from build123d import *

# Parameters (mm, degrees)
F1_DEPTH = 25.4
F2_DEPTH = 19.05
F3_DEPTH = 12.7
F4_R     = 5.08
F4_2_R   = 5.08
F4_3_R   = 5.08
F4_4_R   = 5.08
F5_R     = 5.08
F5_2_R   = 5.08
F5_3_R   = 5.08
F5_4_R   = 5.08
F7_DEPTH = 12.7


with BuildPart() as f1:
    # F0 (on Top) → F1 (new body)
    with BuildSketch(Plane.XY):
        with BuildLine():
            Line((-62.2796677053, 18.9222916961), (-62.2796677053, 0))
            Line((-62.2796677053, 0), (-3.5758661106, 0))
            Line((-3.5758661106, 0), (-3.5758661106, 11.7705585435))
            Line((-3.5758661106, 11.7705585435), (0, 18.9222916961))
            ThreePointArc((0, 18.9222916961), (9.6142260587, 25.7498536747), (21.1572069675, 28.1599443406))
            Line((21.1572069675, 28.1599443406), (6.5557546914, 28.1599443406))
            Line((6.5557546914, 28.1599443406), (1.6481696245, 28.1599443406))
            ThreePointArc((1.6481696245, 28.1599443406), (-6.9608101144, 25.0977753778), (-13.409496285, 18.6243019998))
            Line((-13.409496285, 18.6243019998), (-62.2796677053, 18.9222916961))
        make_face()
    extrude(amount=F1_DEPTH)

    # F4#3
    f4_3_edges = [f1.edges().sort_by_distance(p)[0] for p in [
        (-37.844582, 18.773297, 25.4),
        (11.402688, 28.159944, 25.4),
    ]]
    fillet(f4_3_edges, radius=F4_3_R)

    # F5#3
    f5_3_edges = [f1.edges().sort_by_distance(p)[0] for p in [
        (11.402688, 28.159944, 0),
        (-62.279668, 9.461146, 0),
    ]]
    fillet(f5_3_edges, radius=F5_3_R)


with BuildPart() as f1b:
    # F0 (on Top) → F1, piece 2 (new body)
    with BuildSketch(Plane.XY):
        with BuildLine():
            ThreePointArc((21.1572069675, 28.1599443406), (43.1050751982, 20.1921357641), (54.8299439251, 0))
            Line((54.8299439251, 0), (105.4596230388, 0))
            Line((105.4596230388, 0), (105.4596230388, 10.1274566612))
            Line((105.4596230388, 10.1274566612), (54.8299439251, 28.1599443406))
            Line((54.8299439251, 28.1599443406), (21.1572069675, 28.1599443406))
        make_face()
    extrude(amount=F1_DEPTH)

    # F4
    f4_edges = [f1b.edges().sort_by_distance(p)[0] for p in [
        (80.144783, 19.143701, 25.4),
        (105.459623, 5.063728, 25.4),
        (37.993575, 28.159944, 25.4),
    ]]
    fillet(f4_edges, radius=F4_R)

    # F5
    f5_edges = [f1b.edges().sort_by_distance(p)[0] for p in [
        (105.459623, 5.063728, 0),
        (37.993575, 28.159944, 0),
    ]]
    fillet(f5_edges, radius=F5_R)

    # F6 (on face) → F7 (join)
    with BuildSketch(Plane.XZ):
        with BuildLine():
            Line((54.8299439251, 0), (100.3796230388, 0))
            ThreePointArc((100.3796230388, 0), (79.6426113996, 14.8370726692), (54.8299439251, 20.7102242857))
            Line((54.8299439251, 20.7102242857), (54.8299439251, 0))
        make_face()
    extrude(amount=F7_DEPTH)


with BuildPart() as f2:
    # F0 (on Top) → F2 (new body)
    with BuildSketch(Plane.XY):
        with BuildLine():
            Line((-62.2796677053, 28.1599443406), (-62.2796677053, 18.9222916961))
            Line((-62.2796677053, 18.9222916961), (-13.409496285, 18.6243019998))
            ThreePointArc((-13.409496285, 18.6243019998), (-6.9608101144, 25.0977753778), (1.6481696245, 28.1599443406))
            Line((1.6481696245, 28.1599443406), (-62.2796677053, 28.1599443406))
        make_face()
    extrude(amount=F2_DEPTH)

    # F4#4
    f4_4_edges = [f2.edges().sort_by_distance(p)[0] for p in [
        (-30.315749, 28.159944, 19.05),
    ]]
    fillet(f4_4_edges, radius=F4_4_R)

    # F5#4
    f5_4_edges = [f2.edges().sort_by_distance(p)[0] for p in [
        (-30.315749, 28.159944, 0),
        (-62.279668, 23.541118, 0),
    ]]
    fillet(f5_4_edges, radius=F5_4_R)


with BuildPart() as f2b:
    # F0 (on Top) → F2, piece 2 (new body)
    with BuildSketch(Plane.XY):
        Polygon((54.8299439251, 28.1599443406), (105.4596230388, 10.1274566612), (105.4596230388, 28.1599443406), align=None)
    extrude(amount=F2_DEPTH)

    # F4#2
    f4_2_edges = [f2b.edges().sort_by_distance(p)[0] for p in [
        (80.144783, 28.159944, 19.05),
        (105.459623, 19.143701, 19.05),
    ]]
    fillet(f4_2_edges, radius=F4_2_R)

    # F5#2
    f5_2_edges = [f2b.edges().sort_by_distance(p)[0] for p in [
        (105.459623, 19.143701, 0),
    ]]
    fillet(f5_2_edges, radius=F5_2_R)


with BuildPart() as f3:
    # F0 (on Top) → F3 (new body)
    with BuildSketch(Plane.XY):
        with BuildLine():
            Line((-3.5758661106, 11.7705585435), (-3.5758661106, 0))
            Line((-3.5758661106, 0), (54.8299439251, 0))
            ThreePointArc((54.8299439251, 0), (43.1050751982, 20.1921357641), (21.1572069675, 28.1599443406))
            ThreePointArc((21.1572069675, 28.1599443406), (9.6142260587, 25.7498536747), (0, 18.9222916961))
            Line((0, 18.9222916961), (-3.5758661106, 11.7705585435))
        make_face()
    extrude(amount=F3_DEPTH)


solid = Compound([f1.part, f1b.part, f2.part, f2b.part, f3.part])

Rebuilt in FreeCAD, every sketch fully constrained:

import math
import FreeCAD as App
import Part
import Sketcher
Q = App.Units.Quantity


def edges_at(feature, points):
    """Names of the edges that pass closest to the given points."""
    edges = feature.Shape.Edges
    near = lambda p: min(range(len(edges)), key=lambda i: edges[i].distToShape(Part.Vertex(*p))[0])
    return sorted({f"Edge{near(p) + 1}" for p in points})

doc = App.newDocument("Part")
body = doc.addObject("PartDesign::Body", "Body")

sketch1 = doc.addObject("Sketcher::SketchObject", "Sketch")
body.addObject(sketch1)
sketch1.AttachmentSupport = (doc.XY_Plane, [""])
sketch1.MapMode = "FlatFace"
sketch1.addGeometry([
    Part.LineSegment(App.Vector(-62, 19, 0), App.Vector(-62, 0, 0)),
    Part.LineSegment(App.Vector(-62, 0, 0), App.Vector(-4, 0, 0)),
    Part.LineSegment(App.Vector(-4, 0, 0), App.Vector(-4, 12, 0)),
    Part.LineSegment(App.Vector(-4, 12, 0), App.Vector(0, 19, 0)),
    Part.ArcOfCircle(Part.Circle(App.Vector(21, -1, 0), App.Vector(0, 0, 1), 29), math.radians(90), math.radians(137)),
    Part.LineSegment(App.Vector(21, 28, 0), App.Vector(2, 28, 0)),
    Part.ArcOfCircle(Part.Circle(App.Vector(4, 8, 0), App.Vector(0, 0, 1), 21), math.radians(97), math.radians(148)),
    Part.LineSegment(App.Vector(-13, 19, 0), App.Vector(-62, 19, 0)),
], False)
sketch1.addConstraint([
    Sketcher.Constraint("Coincident", 0, 2, 1, 1),
    Sketcher.Constraint("Coincident", 1, 2, 2, 1),
    Sketcher.Constraint("Coincident", 2, 2, 3, 1),
    Sketcher.Constraint("Coincident", 3, 2, 4, 2),
    Sketcher.Constraint("Tangent", 4, 1, 5, 1),
    Sketcher.Constraint("Coincident", 5, 2, 6, 1),
    Sketcher.Constraint("Coincident", 6, 2, 7, 1),
    Sketcher.Constraint("Coincident", 7, 2, 0, 1),
    Sketcher.Constraint("Vertical", 0),
    Sketcher.Constraint("Horizontal", 1),
    Sketcher.Constraint("Vertical", 2),
    Sketcher.Constraint("Horizontal", 5),
    Sketcher.Constraint("PointOnObject", 0, 2, -1),
    Sketcher.Constraint("PointOnObject", 3, 2, -2),
    Sketcher.Constraint("Horizontal", 3, 2, 7, 2),
    Sketcher.Constraint("DistanceX", 1, 1, 1, 2, 58.703802),
    Sketcher.Constraint("Radius", 4, 28.847244),
    Sketcher.Constraint("Radius", 6, 20.677427),
    Sketcher.Constraint("DistanceY", 0, 2, 0, 1, 18.922292),
    Sketcher.Constraint("DistanceY", 2, 1, 2, 2, 11.770559),
    Sketcher.Constraint("DistanceY", 4, 3, -1, 1, 0.687299),
    Sketcher.Constraint("Distance", 3, 7.995881),
    Sketcher.Constraint("Distance", 7, 48.87108),
    Sketcher.Constraint("DistanceX", 5, 2, 5, 1, 19.509037),
    Sketcher.Constraint("DistanceY", -1, 1, 6, 3, 7.628629),
])
pad1 = doc.addObject("PartDesign::Pad", "Pad")
body.addObject(pad1)
pad1.Profile = sketch1
pad1.Length = Q("1 in")
doc.recompute()

fillet = doc.addObject("PartDesign::Fillet", "Fillet")
body.addObject(fillet)
fillet.Base = (pad1, edges_at(pad1, [(-37.845, 18.773, 25.4), (11.403, 28.16, 25.4)]))
fillet.Radius = Q("0.2 in")
doc.recompute()

fillet2 = doc.addObject("PartDesign::Fillet", "Fillet001")
body.addObject(fillet2)
fillet2.Base = (fillet, edges_at(fillet, [(11.403, 28.16, 0), (-62.28, 9.461, 0)]))
fillet2.Radius = Q("0.2 in")
body2 = doc.addObject("PartDesign::Body", "Body001")

sketch2 = doc.addObject("Sketcher::SketchObject", "Sketch001")
body2.addObject(sketch2)
sketch2.AttachmentSupport = (doc.getObject("XY_Plane001"), [""])
sketch2.MapMode = "FlatFace"
sketch2.addGeometry([
    Part.ArcOfCircle(Part.Circle(App.Vector(21, -6, 0), App.Vector(0, 0, 1), 34), math.radians(10), math.radians(90)),
    Part.LineSegment(App.Vector(55, 0, 0), App.Vector(105, 0, 0)),
    Part.LineSegment(App.Vector(105, 0, 0), App.Vector(105, 10, 0)),
    Part.LineSegment(App.Vector(105, 10, 0), App.Vector(55, 28, 0)),
    Part.LineSegment(App.Vector(55, 28, 0), App.Vector(21, 28, 0)),
], False)
sketch2.addConstraint([
    Sketcher.Constraint("Coincident", 0, 1, 1, 1),
    Sketcher.Constraint("Coincident", 1, 2, 2, 1),
    Sketcher.Constraint("Coincident", 2, 2, 3, 1),
    Sketcher.Constraint("Coincident", 3, 2, 4, 1),
    Sketcher.Constraint("Tangent", 4, 2, 0, 2),
    Sketcher.Constraint("Horizontal", 1),
    Sketcher.Constraint("Vertical", 2),
    Sketcher.Constraint("Horizontal", 4),
    Sketcher.Constraint("PointOnObject", 0, 1, -1),
    Sketcher.Constraint("Vertical", 0, 1, 3, 2),
    Sketcher.Constraint("Radius", 0, 34.212349),
    Sketcher.Constraint("DistanceX", 1, 1, 1, 2, 50.629679),
    Sketcher.Constraint("DistanceX", 4, 2, 4, 1, 33.672737),
    Sketcher.Constraint("DistanceY", 2, 1, 2, 2, 10.127457),
    Sketcher.Constraint("DistanceX", -1, 1, 0, 3, 21.157207),
])
pad2 = doc.addObject("PartDesign::Pad", "Pad001")
body2.addObject(pad2)
pad2.Profile = sketch2
pad2.Length = Q("1 in")
doc.recompute()

fillet3 = doc.addObject("PartDesign::Fillet", "Fillet002")
body2.addObject(fillet3)
fillet3.Base = (pad2, edges_at(pad2, [(80.145, 19.144, 25.4), (105.46, 5.064, 25.4), (37.994, 28.16, 25.4)]))
fillet3.Radius = Q("0.2 in")
doc.recompute()

fillet4 = doc.addObject("PartDesign::Fillet", "Fillet003")
body2.addObject(fillet4)
fillet4.Base = (fillet3, edges_at(fillet3, [(105.46, 5.064, 0), (37.994, 28.16, 0)]))
fillet4.Radius = Q("0.2 in")

sketch3 = doc.addObject("Sketcher::SketchObject", "Sketch002")
body2.addObject(sketch3)
sketch3.AttachmentSupport = (doc.getObject("XZ_Plane001"), [""])
sketch3.MapMode = "FlatFace"
sketch3.addGeometry([
    Part.LineSegment(App.Vector(55, 0, 0), App.Vector(100, 0, 0)),
    Part.ArcOfCircle(Part.Circle(App.Vector(52, -45, 0), App.Vector(0, 0, 1), 66), math.radians(43), math.radians(88)),
    Part.LineSegment(App.Vector(55, 21, 0), App.Vector(55, 0, 0)),
], False)
sketch3.addConstraint([
    Sketcher.Constraint("Coincident", 0, 2, 1, 1),
    Sketcher.Constraint("Coincident", 1, 2, 2, 1),
    Sketcher.Constraint("Coincident", 2, 2, 0, 1),
    Sketcher.Constraint("Horizontal", 0),
    Sketcher.Constraint("Vertical", 2),
    Sketcher.Constraint("PointOnObject", 0, 2, -1),
    Sketcher.Constraint("Radius", 1, 66.026632),
    Sketcher.Constraint("DistanceX", 0, 1, 0, 2, 45.549679),
    Sketcher.Constraint("DistanceY", 2, 2, 2, 1, 20.710224),
    Sketcher.Constraint("DistanceX", -1, 1, 1, 3, 52.314227),
])
pad3 = doc.addObject("PartDesign::Pad", "Pad002")
body2.addObject(pad3)
pad3.Profile = sketch3
pad3.Length = Q("0.5 in")
body3 = doc.addObject("PartDesign::Body", "Body002")

sketch4 = doc.addObject("Sketcher::SketchObject", "Sketch003")
body3.addObject(sketch4)
sketch4.AttachmentSupport = (doc.getObject("XY_Plane002"), [""])
sketch4.MapMode = "FlatFace"
sketch4.addGeometry([
    Part.LineSegment(App.Vector(-62, 28, 0), App.Vector(-62, 19, 0)),
    Part.LineSegment(App.Vector(-62, 19, 0), App.Vector(-13, 19, 0)),
    Part.ArcOfCircle(Part.Circle(App.Vector(4, 8, 0), App.Vector(0, 0, 1), 21), math.radians(97), math.radians(148)),
    Part.LineSegment(App.Vector(2, 28, 0), App.Vector(-62, 28, 0)),
], False)
sketch4.addConstraint([
    Sketcher.Constraint("Coincident", 0, 2, 1, 1),
    Sketcher.Constraint("Coincident", 1, 2, 2, 2),
    Sketcher.Constraint("Coincident", 2, 1, 3, 1),
    Sketcher.Constraint("Coincident", 3, 2, 0, 1),
    Sketcher.Constraint("Vertical", 0),
    Sketcher.Constraint("Horizontal", 3),
    Sketcher.Constraint("Radius", 2, 20.677427),
    Sketcher.Constraint("DistanceY", -1, 1, 1, 2, 18.624302),
    Sketcher.Constraint("Distance", 1, 48.87108),
    Sketcher.Constraint("DistanceX", 3, 2, 3, 1, 63.927837),
    Sketcher.Constraint("DistanceY", 0, 2, 0, 1, 9.237653),
    Sketcher.Constraint("DistanceY", -1, 1, 2, 3, 7.628629),
    Sketcher.Constraint("DistanceX", -1, 1, 2, 1, 1.64817),
])
pad4 = doc.addObject("PartDesign::Pad", "Pad003")
body3.addObject(pad4)
pad4.Profile = sketch4
pad4.Length = Q("0.75 in")
doc.recompute()

fillet5 = doc.addObject("PartDesign::Fillet", "Fillet004")
body3.addObject(fillet5)
fillet5.Base = (pad4, edges_at(pad4, [(-30.316, 28.16, 19.05)]))
fillet5.Radius = Q("0.2 in")
doc.recompute()

fillet6 = doc.addObject("PartDesign::Fillet", "Fillet005")
body3.addObject(fillet6)
fillet6.Base = (fillet5, edges_at(fillet5, [(-30.316, 28.16, 0), (-62.28, 23.541, 0)]))
fillet6.Radius = Q("0.2 in")
body4 = doc.addObject("PartDesign::Body", "Body003")

sketch5 = doc.addObject("Sketcher::SketchObject", "Sketch004")
body4.addObject(sketch5)
sketch5.AttachmentSupport = (doc.getObject("XY_Plane003"), [""])
sketch5.MapMode = "FlatFace"
sketch5.addGeometry([
    Part.LineSegment(App.Vector(55, 28, 0), App.Vector(105, 10, 0)),
    Part.LineSegment(App.Vector(105, 10, 0), App.Vector(105, 28, 0)),
    Part.LineSegment(App.Vector(105, 28, 0), App.Vector(55, 28, 0)),
], False)
sketch5.addConstraint([
    Sketcher.Constraint("Coincident", 0, 2, 1, 1),
    Sketcher.Constraint("Coincident", 1, 2, 2, 1),
    Sketcher.Constraint("Coincident", 2, 2, 0, 1),
    Sketcher.Constraint("Vertical", 1),
    Sketcher.Constraint("Horizontal", 2),
    Sketcher.Constraint("DistanceX", 2, 2, 2, 1, 50.629679),
    Sketcher.Constraint("DistanceY", 1, 1, 1, 2, 18.032488),
    Sketcher.Constraint("DistanceX", -1, 1, 0, 2, 105.459623),
    Sketcher.Constraint("DistanceY", -1, 1, 0, 2, 10.127457),
])
pad5 = doc.addObject("PartDesign::Pad", "Pad004")
body4.addObject(pad5)
pad5.Profile = sketch5
pad5.Length = Q("0.75 in")
doc.recompute()

fillet7 = doc.addObject("PartDesign::Fillet", "Fillet006")
body4.addObject(fillet7)
fillet7.Base = (pad5, edges_at(pad5, [(80.145, 28.16, 19.05), (105.46, 19.144, 19.05)]))
fillet7.Radius = Q("0.2 in")
doc.recompute()

fillet8 = doc.addObject("PartDesign::Fillet", "Fillet007")
body4.addObject(fillet8)
fillet8.Base = (fillet7, edges_at(fillet7, [(105.46, 19.144, 0)]))
fillet8.Radius = Q("0.2 in")
body5 = doc.addObject("PartDesign::Body", "Body004")

sketch6 = doc.addObject("Sketcher::SketchObject", "Sketch005")
body5.addObject(sketch6)
sketch6.AttachmentSupport = (doc.getObject("XY_Plane004"), [""])
sketch6.MapMode = "FlatFace"
sketch6.addGeometry([
    Part.LineSegment(App.Vector(-4, 12, 0), App.Vector(-4, 0, 0)),
    Part.LineSegment(App.Vector(-4, 0, 0), App.Vector(55, 0, 0)),
    Part.ArcOfCircle(Part.Circle(App.Vector(21, -6, 0), App.Vector(0, 0, 1), 34), math.radians(10), math.radians(90)),
    Part.ArcOfCircle(Part.Circle(App.Vector(21, -1, 0), App.Vector(0, 0, 1), 29), math.radians(90), math.radians(137)),
    Part.LineSegment(App.Vector(0, 19, 0), App.Vector(-4, 12, 0)),
], False)
sketch6.addConstraint([
    Sketcher.Constraint("Coincident", 0, 2, 1, 1),
    Sketcher.Constraint("Coincident", 1, 2, 2, 1),
    Sketcher.Constraint("Tangent", 2, 2, 3, 1),
    Sketcher.Constraint("Coincident", 3, 2, 4, 1),
    Sketcher.Constraint("Coincident", 4, 2, 0, 1),
    Sketcher.Constraint("Vertical", 0),
    Sketcher.Constraint("Horizontal", 1),
    Sketcher.Constraint("PointOnObject", 0, 2, -1),
    Sketcher.Constraint("PointOnObject", 3, 2, -2),
    Sketcher.Constraint("Vertical", 2, 3, 3, 3),
    Sketcher.Constraint("Radius", 2, 34.212349),
    Sketcher.Constraint("Radius", 3, 28.847244),
    Sketcher.Constraint("DistanceX", 1, 1, 1, 2, 58.40581),
    Sketcher.Constraint("DistanceY", 0, 2, 0, 1, 11.770559),
    Sketcher.Constraint("DistanceY", 3, 3, -1, 1, 0.687299),
    Sketcher.Constraint("Distance", 4, 7.995881),
])
pad6 = doc.addObject("PartDesign::Pad", "Pad005")
body5.addObject(pad6)
pad6.Profile = sketch6
pad6.Length = Q("0.5 in")

doc.recompute()
